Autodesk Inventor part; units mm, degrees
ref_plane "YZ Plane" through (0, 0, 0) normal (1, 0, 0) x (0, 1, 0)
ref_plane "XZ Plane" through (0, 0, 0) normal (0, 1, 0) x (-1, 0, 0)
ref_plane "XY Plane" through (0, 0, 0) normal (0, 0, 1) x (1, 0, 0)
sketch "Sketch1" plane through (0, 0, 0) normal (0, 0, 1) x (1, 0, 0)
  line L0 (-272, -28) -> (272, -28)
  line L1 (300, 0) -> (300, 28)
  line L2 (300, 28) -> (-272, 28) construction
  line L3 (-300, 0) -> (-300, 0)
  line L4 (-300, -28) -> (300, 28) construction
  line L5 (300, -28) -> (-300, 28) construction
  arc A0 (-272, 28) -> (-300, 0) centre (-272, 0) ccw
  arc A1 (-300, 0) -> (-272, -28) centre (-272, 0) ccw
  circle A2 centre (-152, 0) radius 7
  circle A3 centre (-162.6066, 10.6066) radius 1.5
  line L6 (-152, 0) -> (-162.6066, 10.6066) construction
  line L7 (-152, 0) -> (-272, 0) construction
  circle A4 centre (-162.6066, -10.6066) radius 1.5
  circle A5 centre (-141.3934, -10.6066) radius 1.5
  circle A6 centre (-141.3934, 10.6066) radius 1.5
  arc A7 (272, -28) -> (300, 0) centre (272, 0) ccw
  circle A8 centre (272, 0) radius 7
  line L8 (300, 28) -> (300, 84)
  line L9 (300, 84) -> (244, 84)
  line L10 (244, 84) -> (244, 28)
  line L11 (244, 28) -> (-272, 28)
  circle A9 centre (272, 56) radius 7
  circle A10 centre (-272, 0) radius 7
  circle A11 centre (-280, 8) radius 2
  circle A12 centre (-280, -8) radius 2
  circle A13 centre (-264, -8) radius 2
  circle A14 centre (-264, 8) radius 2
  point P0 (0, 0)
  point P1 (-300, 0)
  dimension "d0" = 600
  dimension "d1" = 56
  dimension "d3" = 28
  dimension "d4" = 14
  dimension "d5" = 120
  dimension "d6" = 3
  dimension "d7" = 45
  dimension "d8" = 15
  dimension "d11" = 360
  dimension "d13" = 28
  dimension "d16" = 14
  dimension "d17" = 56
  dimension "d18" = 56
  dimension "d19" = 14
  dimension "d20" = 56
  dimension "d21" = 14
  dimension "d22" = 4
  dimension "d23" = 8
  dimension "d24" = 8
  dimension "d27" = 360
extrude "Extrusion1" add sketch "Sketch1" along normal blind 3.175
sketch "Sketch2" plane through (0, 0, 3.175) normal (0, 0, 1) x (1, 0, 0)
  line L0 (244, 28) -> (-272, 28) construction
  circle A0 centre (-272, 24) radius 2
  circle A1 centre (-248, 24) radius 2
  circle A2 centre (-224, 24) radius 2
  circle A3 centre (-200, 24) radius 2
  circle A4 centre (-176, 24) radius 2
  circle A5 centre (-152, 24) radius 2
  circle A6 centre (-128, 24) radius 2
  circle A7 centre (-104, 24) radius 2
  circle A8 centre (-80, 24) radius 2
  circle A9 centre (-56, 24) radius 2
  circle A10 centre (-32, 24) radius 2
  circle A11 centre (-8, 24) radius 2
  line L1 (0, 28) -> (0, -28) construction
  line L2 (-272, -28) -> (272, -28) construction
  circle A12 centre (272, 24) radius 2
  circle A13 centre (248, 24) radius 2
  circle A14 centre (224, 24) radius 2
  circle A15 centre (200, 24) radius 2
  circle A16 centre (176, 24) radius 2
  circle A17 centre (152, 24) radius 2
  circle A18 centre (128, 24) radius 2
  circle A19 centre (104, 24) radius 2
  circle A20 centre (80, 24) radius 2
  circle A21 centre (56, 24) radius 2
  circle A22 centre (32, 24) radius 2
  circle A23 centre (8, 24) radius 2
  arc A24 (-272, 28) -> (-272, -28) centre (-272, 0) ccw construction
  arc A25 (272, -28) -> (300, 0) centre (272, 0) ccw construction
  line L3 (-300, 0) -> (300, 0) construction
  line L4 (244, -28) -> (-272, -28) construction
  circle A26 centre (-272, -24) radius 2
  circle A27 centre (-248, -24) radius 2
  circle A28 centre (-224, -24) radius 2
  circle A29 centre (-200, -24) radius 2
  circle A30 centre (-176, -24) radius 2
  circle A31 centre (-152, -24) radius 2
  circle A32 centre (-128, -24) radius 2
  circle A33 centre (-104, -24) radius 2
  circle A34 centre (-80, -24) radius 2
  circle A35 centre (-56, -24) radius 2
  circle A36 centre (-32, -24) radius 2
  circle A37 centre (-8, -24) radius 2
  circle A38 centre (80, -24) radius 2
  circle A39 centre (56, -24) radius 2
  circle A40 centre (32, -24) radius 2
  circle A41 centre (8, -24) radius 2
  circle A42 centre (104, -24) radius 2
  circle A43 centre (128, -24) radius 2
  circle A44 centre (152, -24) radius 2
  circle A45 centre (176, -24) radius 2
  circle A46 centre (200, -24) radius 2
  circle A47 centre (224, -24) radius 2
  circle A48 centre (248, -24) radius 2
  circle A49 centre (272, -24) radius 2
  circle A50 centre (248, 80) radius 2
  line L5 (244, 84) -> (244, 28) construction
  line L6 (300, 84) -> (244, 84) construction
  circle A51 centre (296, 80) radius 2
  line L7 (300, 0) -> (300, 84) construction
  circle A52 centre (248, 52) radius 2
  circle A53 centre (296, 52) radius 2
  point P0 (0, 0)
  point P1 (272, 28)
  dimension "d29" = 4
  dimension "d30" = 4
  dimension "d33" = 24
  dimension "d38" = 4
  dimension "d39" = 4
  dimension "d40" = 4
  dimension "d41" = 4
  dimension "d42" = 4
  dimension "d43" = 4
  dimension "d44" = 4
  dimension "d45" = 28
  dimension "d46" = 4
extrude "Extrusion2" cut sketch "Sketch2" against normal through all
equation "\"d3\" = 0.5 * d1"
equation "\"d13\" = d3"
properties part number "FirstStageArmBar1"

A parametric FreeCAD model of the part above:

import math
import FreeCAD as App
import Part
import Sketcher
Q = App.Units.Quantity

doc = App.newDocument("Part")
body = doc.addObject("PartDesign::Body", "Body")

# Sketch on XY plane
sketch1 = body.newObject("Sketcher::SketchObject", "Sketch")
sketch1.AttachmentSupport = (doc.getObject("XY_Plane"), [""])
sketch1.MapMode = "FlatFace"
sketch1.addGeometry([
    Part.ArcOfCircle(Part.Circle(App.Vector(-272, 0, 0), App.Vector(0, 0, 1), 28), math.radians(90), math.radians(270)),  # 0
    Part.LineSegment(App.Vector(-272, -28, 0), App.Vector(272, -28, 0)),  # 1
    Part.ArcOfCircle(Part.Circle(App.Vector(272, 0, 0), App.Vector(0, 0, 1), 28), math.radians(-90), math.radians(0)),  # 2
    Part.LineSegment(App.Vector(300, 0, 0), App.Vector(300, 84, 0)),  # 3
    Part.LineSegment(App.Vector(300, 84, 0), App.Vector(244, 84, 0)),  # 4
    Part.LineSegment(App.Vector(244, 84, 0), App.Vector(244, 28, 0)),  # 5
    Part.LineSegment(App.Vector(244, 28, 0), App.Vector(-272, 28, 0)),  # 6
    Part.Circle(App.Vector(-280, -8, 0), App.Vector(0, 0, 1), 2),  # 7
    Part.Circle(App.Vector(-264, -8, 0), App.Vector(0, 0, 1), 2),  # 8
    Part.Circle(App.Vector(-162.6, -10.6, 0), App.Vector(0, 0, 1), 1.5),  # 9
    Part.Circle(App.Vector(-141.4, -10.6, 0), App.Vector(0, 0, 1), 1.5),  # 10
    Part.Circle(App.Vector(-272, 0, 0), App.Vector(0, 0, 1), 7),  # 11
    Part.Circle(App.Vector(-280, 8, 0), App.Vector(0, 0, 1), 2),  # 12
    Part.Circle(App.Vector(-264, 8, 0), App.Vector(0, 0, 1), 2),  # 13
    Part.Circle(App.Vector(-152, 0, 0), App.Vector(0, 0, 1), 7),  # 14
    Part.Circle(App.Vector(-162.6, 10.6, 0), App.Vector(0, 0, 1), 1.5),  # 15
    Part.Circle(App.Vector(-141.4, 10.6, 0), App.Vector(0, 0, 1), 1.5),  # 16
    Part.Circle(App.Vector(272, 0, 0), App.Vector(0, 0, 1), 7),  # 17
    Part.Circle(App.Vector(272, 56, 0), App.Vector(0, 0, 1), 7),  # 18
], False)
sketch1.addConstraint([
    Sketcher.Constraint("Tangent", 0, 2, 1, 1),
    Sketcher.Constraint("Tangent", 1, 2, 2, 1),
    Sketcher.Constraint("Tangent", 2, 2, 3, 1),
    Sketcher.Constraint("Coincident", 3, 2, 4, 1),
    Sketcher.Constraint("Coincident", 4, 2, 5, 1),
    Sketcher.Constraint("Coincident", 5, 2, 6, 1),
    Sketcher.Constraint("Tangent", 6, 2, 0, 1),
    Sketcher.Constraint("Horizontal", 1),
    Sketcher.Constraint("Vertical", 3),
    Sketcher.Constraint("Horizontal", 4),
    Sketcher.Constraint("Vertical", 5),
    Sketcher.Constraint("Horizontal", 6),
    Sketcher.Constraint("Coincident", 11, 3, 0, 3),
    Sketcher.Constraint("Coincident", 17, 3, 2, 3),
    Sketcher.Constraint("Equal", 0, 2),
    Sketcher.Constraint("Equal", 7, 8),
    Sketcher.Constraint("Equal", 9, 10),
    Sketcher.Constraint("Equal", 8, 12),
    Sketcher.Constraint("Equal", 12, 13),
    Sketcher.Constraint("Equal", 11, 14),
    Sketcher.Constraint("Equal", 10, 15),
    Sketcher.Constraint("Equal", 15, 16),
    Sketcher.Constraint("Equal", 14, 17),
    Sketcher.Constraint("Equal", 17, 18),
    Sketcher.Constraint("Symmetric", 0, 3, 2, 3, -1, 1),
    Sketcher.Constraint("Symmetric", 7, 3, 12, 3, -1),
    Sketcher.Constraint("Symmetric", 8, 3, 13, 3, -1),
    Sketcher.Constraint("Symmetric", 9, 3, 15, 3, -1),
    Sketcher.Constraint("Symmetric", 10, 3, 16, 3, -1),
    Sketcher.Constraint("PointOnObject", 14, 3, -1),
    Sketcher.Constraint("Horizontal", 7, 3, 8, 3),
    Sketcher.Constraint("Horizontal", 9, 3, 10, 3),
    Sketcher.Constraint("Vertical", 17, 3, 18, 3),
    Sketcher.Constraint("Equal", 4, 5),
    Sketcher.Constraint("Diameter", 7, Q("4 mm")),
    Sketcher.Constraint("Diameter", 9, Q("3 mm")),
    Sketcher.Constraint("Diameter", 11, Q("14 mm")),
    Sketcher.Constraint("Radius", 0, Q("28 mm")),
    Sketcher.Constraint("DistanceX", 4, 2, 4, 1, Q("56 mm")),
    Sketcher.Constraint("DistanceY", 7, 3, -1, 1, Q("8 mm")),
    Sketcher.Constraint("DistanceY", -1, 1, 18, 3, Q("56 mm")),
    Sketcher.Constraint("DistanceX", 7, 3, 0, 3, Q("8 mm")),
    Sketcher.Constraint("DistanceX", 0, 3, 8, 3, Q("8 mm")),
    Sketcher.Constraint("DistanceX", 0, 3, 14, 3, Q("120 mm")),
    Sketcher.Constraint("DistanceX", 1, 1, 1, 2, Q("544 mm")),
    Sketcher.Constraint("DistanceX", 9, 3, -1, 1, Q("162.6066 mm")),
    Sketcher.Constraint("DistanceY", 9, 3, -1, 1, Q("10.6066 mm")),
    Sketcher.Constraint("DistanceX", 10, 3, -1, 1, Q("141.3934 mm")),
])
pad1 = body.newObject("PartDesign::Pad", "Pad")
pad1.Profile = sketch1
pad1.Length = 3.175

# Sketch on XY plane
sketch2 = body.newObject("Sketcher::SketchObject", "Sketch001")
sketch2.AttachmentSupport = (doc.getObject("XY_Plane"), [""])
sketch2.MapMode = "FlatFace"
sketch2.AttachmentOffset = App.Placement(App.Vector(0, 0, 3.175), App.Rotation())
sketch2.addGeometry([
    Part.Circle(App.Vector(-272, 24, 0), App.Vector(0, 0, 1), 2),  # 0
    Part.Circle(App.Vector(-248, 24, 0), App.Vector(0, 0, 1), 2),  # 1
    Part.Circle(App.Vector(-224, 24, 0), App.Vector(0, 0, 1), 2),  # 2
    Part.Circle(App.Vector(-200, 24, 0), App.Vector(0, 0, 1), 2),  # 3
    Part.Circle(App.Vector(-176, 24, 0), App.Vector(0, 0, 1), 2),  # 4
    Part.Circle(App.Vector(-152, 24, 0), App.Vector(0, 0, 1), 2),  # 5
    Part.Circle(App.Vector(-128, 24, 0), App.Vector(0, 0, 1), 2),  # 6
    Part.Circle(App.Vector(-104, 24, 0), App.Vector(0, 0, 1), 2),  # 7
    Part.Circle(App.Vector(-80, 24, 0), App.Vector(0, 0, 1), 2),  # 8
    Part.Circle(App.Vector(-56, 24, 0), App.Vector(0, 0, 1), 2),  # 9
    Part.Circle(App.Vector(-32, 24, 0), App.Vector(0, 0, 1), 2),  # 10
    Part.Circle(App.Vector(-8, 24, 0), App.Vector(0, 0, 1), 2),  # 11
    Part.Circle(App.Vector(272, 24, 0), App.Vector(0, 0, 1), 2),  # 12
    Part.Circle(App.Vector(248, 24, 0), App.Vector(0, 0, 1), 2),  # 13
    Part.Circle(App.Vector(224, 24, 0), App.Vector(0, 0, 1), 2),  # 14
    Part.Circle(App.Vector(200, 24, 0), App.Vector(0, 0, 1), 2),  # 15
    Part.Circle(App.Vector(176, 24, 0), App.Vector(0, 0, 1), 2),  # 16
    Part.Circle(App.Vector(152, 24, 0), App.Vector(0, 0, 1), 2),  # 17
    Part.Circle(App.Vector(128, 24, 0), App.Vector(0, 0, 1), 2),  # 18
    Part.Circle(App.Vector(104, 24, 0), App.Vector(0, 0, 1), 2),  # 19
    Part.Circle(App.Vector(80, 24, 0), App.Vector(0, 0, 1), 2),  # 20
    Part.Circle(App.Vector(56, 24, 0), App.Vector(0, 0, 1), 2),  # 21
    Part.Circle(App.Vector(32, 24, 0), App.Vector(0, 0, 1), 2),  # 22
    Part.Circle(App.Vector(8, 24, 0), App.Vector(0, 0, 1), 2),  # 23
    Part.Circle(App.Vector(-272, -24, 0), App.Vector(0, 0, 1), 2),  # 24
    Part.Circle(App.Vector(-248, -24, 0), App.Vector(0, 0, 1), 2),  # 25
    Part.Circle(App.Vector(-224, -24, 0), App.Vector(0, 0, 1), 2),  # 26
    Part.Circle(App.Vector(-200, -24, 0), App.Vector(0, 0, 1), 2),  # 27
    Part.Circle(App.Vector(-176, -24, 0), App.Vector(0, 0, 1), 2),  # 28
    Part.Circle(App.Vector(-152, -24, 0), App.Vector(0, 0, 1), 2),  # 29
    Part.Circle(App.Vector(-128, -24, 0), App.Vector(0, 0, 1), 2),  # 30
    Part.Circle(App.Vector(-104, -24, 0), App.Vector(0, 0, 1), 2),  # 31
    Part.Circle(App.Vector(-80, -24, 0), App.Vector(0, 0, 1), 2),  # 32
    Part.Circle(App.Vector(-56, -24, 0), App.Vector(0, 0, 1), 2),  # 33
    Part.Circle(App.Vector(-32, -24, 0), App.Vector(0, 0, 1), 2),  # 34
    Part.Circle(App.Vector(-8, -24, 0), App.Vector(0, 0, 1), 2),  # 35
    Part.Circle(App.Vector(80, -24, 0), App.Vector(0, 0, 1), 2),  # 36
    Part.Circle(App.Vector(56, -24, 0), App.Vector(0, 0, 1), 2),  # 37
    Part.Circle(App.Vector(32, -24, 0), App.Vector(0, 0, 1), 2),  # 38
    Part.Circle(App.Vector(8, -24, 0), App.Vector(0, 0, 1), 2),  # 39
    Part.Circle(App.Vector(104, -24, 0), App.Vector(0, 0, 1), 2),  # 40
    Part.Circle(App.Vector(128, -24, 0), App.Vector(0, 0, 1), 2),  # 41
    Part.Circle(App.Vector(152, -24, 0), App.Vector(0, 0, 1), 2),  # 42
    Part.Circle(App.Vector(176, -24, 0), App.Vector(0, 0, 1), 2),  # 43
    Part.Circle(App.Vector(200, -24, 0), App.Vector(0, 0, 1), 2),  # 44
    Part.Circle(App.Vector(224, -24, 0), App.Vector(0, 0, 1), 2),  # 45
    Part.Circle(App.Vector(248, -24, 0), App.Vector(0, 0, 1), 2),  # 46
    Part.Circle(App.Vector(272, -24, 0), App.Vector(0, 0, 1), 2),  # 47
    Part.Circle(App.Vector(248, 80, 0), App.Vector(0, 0, 1), 2),  # 48
    Part.Circle(App.Vector(296, 80, 0), App.Vector(0, 0, 1), 2),  # 49
    Part.Circle(App.Vector(248, 52, 0), App.Vector(0, 0, 1), 2),  # 50
    Part.Circle(App.Vector(296, 52, 0), App.Vector(0, 0, 1), 2),  # 51
], False)
sketch2.addConstraint([
    Sketcher.Constraint("Equal", 0, 1),
    Sketcher.Constraint("Equal", 1, 2),
    Sketcher.Constraint("Equal", 2, 3),
    Sketcher.Constraint("Equal", 3, 4),
    Sketcher.Constraint("Equal", 4, 5),
    Sketcher.Constraint("Equal", 5, 6),
    Sketcher.Constraint("Equal", 6, 7),
    Sketcher.Constraint("Equal", 7, 8),
    Sketcher.Constraint("Equal", 8, 9),
    Sketcher.Constraint("Equal", 9, 10),
    Sketcher.Constraint("Equal", 10, 11),
    Sketcher.Constraint("Equal", 11, 12),
    Sketcher.Constraint("Equal", 12, 13),
    Sketcher.Constraint("Equal", 13, 14),
    Sketcher.Constraint("Equal", 14, 15),
    Sketcher.Constraint("Equal", 15, 16),
    Sketcher.Constraint("Equal", 16, 17),
    Sketcher.Constraint("Equal", 17, 18),
    Sketcher.Constraint("Equal", 18, 19),
    Sketcher.Constraint("Equal", 19, 20),
    Sketcher.Constraint("Equal", 20, 21),
    Sketcher.Constraint("Equal", 21, 22),
    Sketcher.Constraint("Equal", 22, 23),
    Sketcher.Constraint("Equal", 23, 24),
    Sketcher.Constraint("Equal", 24, 25),
    Sketcher.Constraint("Equal", 25, 26),
    Sketcher.Constraint("Equal", 26, 27),
    Sketcher.Constraint("Equal", 27, 28),
    Sketcher.Constraint("Equal", 28, 29),
    Sketcher.Constraint("Equal", 29, 30),
    Sketcher.Constraint("Equal", 30, 31),
    Sketcher.Constraint("Equal", 31, 32),
    Sketcher.Constraint("Equal", 32, 33),
    Sketcher.Constraint("Equal", 33, 34),
    Sketcher.Constraint("Equal", 34, 35),
    Sketcher.Constraint("Equal", 35, 36),
    Sketcher.Constraint("Equal", 36, 37),
    Sketcher.Constraint("Equal", 37, 38),
    Sketcher.Constraint("Equal", 38, 39),
    Sketcher.Constraint("Equal", 39, 40),
    Sketcher.Constraint("Equal", 40, 41),
    Sketcher.Constraint("Equal", 41, 42),
    Sketcher.Constraint("Equal", 42, 43),
    Sketcher.Constraint("Equal", 43, 44),
    Sketcher.Constraint("Equal", 44, 45),
    Sketcher.Constraint("Equal", 45, 46),
    Sketcher.Constraint("Equal", 46, 47),
    Sketcher.Constraint("Equal", 47, 48),
    Sketcher.Constraint("Equal", 48, 49),
    Sketcher.Constraint("Equal", 49, 50),
    Sketcher.Constraint("Equal", 50, 51),
    Sketcher.Constraint("Symmetric", 12, 3, 24, 3, -1, 1),
    Sketcher.Constraint("Symmetric", 13, 3, 25, 3, -1, 1),
    Sketcher.Constraint("Symmetric", 14, 3, 26, 3, -1, 1),
    Sketcher.Constraint("Symmetric", 15, 3, 27, 3, -1, 1),
    Sketcher.Constraint("Symmetric", 16, 3, 28, 3, -1, 1),
    Sketcher.Constraint("Symmetric", 17, 3, 29, 3, -1, 1),
    Sketcher.Constraint("Symmetric", 18, 3, 30, 3, -1, 1),
    Sketcher.Constraint("Symmetric", 19, 3, 31, 3, -1, 1),
    Sketcher.Constraint("Symmetric", 20, 3, 32, 3, -1, 1),
    Sketcher.Constraint("Symmetric", 21, 3, 33, 3, -1, 1),
    Sketcher.Constraint("Symmetric", 22, 3, 34, 3, -1, 1),
    Sketcher.Constraint("Symmetric", 23, 3, 35, 3, -1, 1),
    Sketcher.Constraint("Symmetric", 8, 3, 36, 3, -1, 1),
    Sketcher.Constraint("Symmetric", 9, 3, 37, 3, -1, 1),
    Sketcher.Constraint("Symmetric", 10, 3, 38, 3, -1, 1),
    Sketcher.Constraint("Symmetric", 11, 3, 39, 3, -1, 1),
    Sketcher.Constraint("Symmetric", 7, 3, 40, 3, -1, 1),
    Sketcher.Constraint("Symmetric", 6, 3, 41, 3, -1, 1),
    Sketcher.Constraint("Symmetric", 5, 3, 42, 3, -1, 1),
    Sketcher.Constraint("Symmetric", 4, 3, 43, 3, -1, 1),
    Sketcher.Constraint("Symmetric", 3, 3, 44, 3, -1, 1),
    Sketcher.Constraint("Symmetric", 2, 3, 45, 3, -1, 1),
    Sketcher.Constraint("Symmetric", 1, 3, 46, 3, -1, 1),
    Sketcher.Constraint("Symmetric", 0, 3, 47, 3, -1, 1),
    Sketcher.Constraint("Symmetric", 0, 3, 12, 3, -2),
    Sketcher.Constraint("Symmetric", 1, 3, 13, 3, -2),
    Sketcher.Constraint("Symmetric", 2, 3, 14, 3, -2),
    Sketcher.Constraint("Symmetric", 3, 3, 15, 3, -2),
    Sketcher.Constraint("Symmetric", 4, 3, 16, 3, -2),
    Sketcher.Constraint("Symmetric", 5, 3, 17, 3, -2),
    Sketcher.Constraint("Symmetric", 6, 3, 18, 3, -2),
    Sketcher.Constraint("Symmetric", 7, 3, 19, 3, -2),
    Sketcher.Constraint("Symmetric", 8, 3, 20, 3, -2),
    Sketcher.Constraint("Symmetric", 9, 3, 21, 3, -2),
    Sketcher.Constraint("Symmetric", 10, 3, 22, 3, -2),
    Sketcher.Constraint("Symmetric", 11, 3, 23, 3, -2),
    Sketcher.Constraint("Horizontal", 0, 3, 1, 3),
    Sketcher.Constraint("Horizontal", 1, 3, 2, 3),
    Sketcher.Constraint("Horizontal", 2, 3, 3, 3),
    Sketcher.Constraint("Horizontal", 3, 3, 4, 3),
    Sketcher.Constraint("Horizontal", 4, 3, 5, 3),
    Sketcher.Constraint("Horizontal", 5, 3, 6, 3),
    Sketcher.Constraint("Horizontal", 6, 3, 7, 3),
    Sketcher.Constraint("Horizontal", 7, 3, 8, 3),
    Sketcher.Constraint("Horizontal", 8, 3, 9, 3),
    Sketcher.Constraint("Horizontal", 9, 3, 10, 3),
    Sketcher.Constraint("Horizontal", 10, 3, 11, 3),
    Sketcher.Constraint("Horizontal", 48, 3, 49, 3),
    Sketcher.Constraint("Horizontal", 50, 3, 51, 3),
    Sketcher.Constraint("Vertical", 46, 3, 48, 3),
    Sketcher.Constraint("Vertical", 48, 3, 50, 3),
    Sketcher.Constraint("Vertical", 49, 3, 51, 3),
    Sketcher.Constraint("Diameter", 0, Q("4 mm")),
    Sketcher.Constraint("DistanceY", -1, 1, 0, 3, Q("24 mm")),
    Sketcher.Constraint("DistanceX", 0, 3, 1, 3, Q("24 mm")),
    Sketcher.Constraint("DistanceX", 1, 3, 2, 3, Q("24 mm")),
    Sketcher.Constraint("DistanceX", 2, 3, 3, 3, Q("24 mm")),
    Sketcher.Constraint("DistanceX", 3, 3, 4, 3, Q("24 mm")),
    Sketcher.Constraint("DistanceX", 4, 3, 5, 3, Q("24 mm")),
    Sketcher.Constraint("DistanceX", 5, 3, 6, 3, Q("24 mm")),
    Sketcher.Constraint("DistanceX", 6, 3, 7, 3, Q("24 mm")),
    Sketcher.Constraint("DistanceX", 7, 3, 8, 3, Q("24 mm")),
    Sketcher.Constraint("DistanceX", 8, 3, 9, 3, Q("24 mm")),
    Sketcher.Constraint("DistanceX", 9, 3, 10, 3, Q("24 mm")),
    Sketcher.Constraint("DistanceX", 10, 3, 11, 3, Q("24 mm")),
    Sketcher.Constraint("DistanceX", 12, 3, 49, 3, Q("24 mm")),
    Sketcher.Constraint("DistanceY", 13, 3, 50, 3, Q("28 mm")),
    Sketcher.Constraint("DistanceY", 50, 3, 48, 3, Q("28 mm")),
    Sketcher.Constraint("DistanceX", 0, 3, -1, 1, Q("272 mm")),
])
pocket1 = body.newObject("PartDesign::Pocket", "Pocket")
pocket1.Profile = sketch2
pocket1.Type = "ThroughAll"

doc.recompute()
